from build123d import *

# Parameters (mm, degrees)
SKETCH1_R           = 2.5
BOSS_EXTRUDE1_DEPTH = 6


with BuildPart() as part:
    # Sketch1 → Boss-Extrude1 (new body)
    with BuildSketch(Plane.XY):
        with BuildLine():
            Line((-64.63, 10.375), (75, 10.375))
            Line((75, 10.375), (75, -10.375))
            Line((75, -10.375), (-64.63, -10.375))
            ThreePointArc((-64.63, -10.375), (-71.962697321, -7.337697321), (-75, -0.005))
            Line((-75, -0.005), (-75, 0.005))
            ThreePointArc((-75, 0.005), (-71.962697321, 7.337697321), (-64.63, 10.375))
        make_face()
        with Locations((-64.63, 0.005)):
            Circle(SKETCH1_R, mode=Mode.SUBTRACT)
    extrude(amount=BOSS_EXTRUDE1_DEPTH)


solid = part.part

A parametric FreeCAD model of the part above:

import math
import FreeCAD as App
import Part
import Sketcher

doc = App.newDocument("Part")
body = doc.addObject("PartDesign::Body", "Body")

# Sketch on XY plane
sketch1 = body.newObject("Sketcher::SketchObject", "Sketch")
sketch1.AttachmentSupport = (doc.getObject("XY_Plane"), [""])
sketch1.MapMode = "FlatFace"
sketch1.addGeometry([
    Part.LineSegment(App.Vector(75, 10.375, 0), App.Vector(-64.63, 10.375, 0)),  # 0
    Part.ArcOfCircle(Part.Circle(App.Vector(-64.63, 0.005, 0), App.Vector(0, 0, 1), 10.37), math.radians(90), math.radians(180)),  # 1
    Part.LineSegment(App.Vector(-75, 0.005, 0), App.Vector(-75, -0.005, 0)),  # 2
    Part.ArcOfCircle(Part.Circle(App.Vector(-64.63, -0.005, 0), App.Vector(0, 0, 1), 10.37), math.radians(180), math.radians(270)),  # 3
    Part.LineSegment(App.Vector(-64.63, -10.375, 0), App.Vector(75, -10.375, 0)),  # 4
    Part.LineSegment(App.Vector(75, -10.375, 0), App.Vector(75, 10.375, 0)),  # 5
    Part.Circle(App.Vector(-64.63, 0.005, 0), App.Vector(0, 0, 1), 2.5),  # 6
], False)
sketch1.addConstraint([
    Sketcher.Constraint("Tangent", 0, 2, 1, 1),
    Sketcher.Constraint("Tangent", 1, 2, 2, 1),
    Sketcher.Constraint("Coincident", 2, 2, 3, 1),
    Sketcher.Constraint("Tangent", 3, 2, 4, 1),
    Sketcher.Constraint("Coincident", 4, 2, 5, 1),
    Sketcher.Constraint("Coincident", 5, 2, 0, 1),
    Sketcher.Constraint("Horizontal", 0),
    Sketcher.Constraint("Horizontal", 4),
    Sketcher.Constraint("Vertical", 5),
    Sketcher.Constraint("Coincident", 6, 3, 1, 3),
    Sketcher.Constraint("Equal", 1, 3),
    Sketcher.Constraint("Horizontal", 6, 3, 1, 2),
    Sketcher.Constraint("Horizontal", 3, 3, 2, 2),
    Sketcher.Constraint("Diameter", 6, 5.0),
    Sketcher.Constraint("Radius", 1, 10.37),
    Sketcher.Constraint("DistanceX", 1, 2, -1, 1, 75.0),
    Sketcher.Constraint("DistanceX", -1, 1, 4, 2, 75.0),
    Sketcher.Constraint("DistanceY", 2, 2, 2, 1, 0.01),
    Sketcher.Constraint("DistanceY", -1, 1, 1, 3, 0.005),
])
pad1 = body.newObject("PartDesign::Pad", "Pad")
pad1.Profile = sketch1
pad1.Length = 6

doc.recompute()
